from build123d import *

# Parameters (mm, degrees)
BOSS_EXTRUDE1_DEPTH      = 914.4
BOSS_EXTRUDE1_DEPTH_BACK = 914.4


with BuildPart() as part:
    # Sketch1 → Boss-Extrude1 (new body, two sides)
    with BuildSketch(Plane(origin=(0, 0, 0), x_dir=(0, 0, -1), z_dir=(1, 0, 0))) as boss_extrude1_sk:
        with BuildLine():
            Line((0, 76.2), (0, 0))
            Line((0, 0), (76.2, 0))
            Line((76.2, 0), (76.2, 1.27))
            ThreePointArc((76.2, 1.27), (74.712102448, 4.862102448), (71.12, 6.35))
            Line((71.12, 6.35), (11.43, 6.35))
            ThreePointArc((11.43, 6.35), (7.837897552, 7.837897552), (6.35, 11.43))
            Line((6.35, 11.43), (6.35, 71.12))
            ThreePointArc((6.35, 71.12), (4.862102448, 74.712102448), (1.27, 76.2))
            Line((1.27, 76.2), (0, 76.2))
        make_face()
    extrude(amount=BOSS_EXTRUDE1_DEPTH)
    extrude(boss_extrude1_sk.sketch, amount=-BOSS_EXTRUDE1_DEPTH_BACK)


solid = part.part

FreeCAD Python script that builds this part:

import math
import FreeCAD as App
import Part
import Sketcher
Q = App.Units.Quantity

doc = App.newDocument("Part")
body = doc.addObject("PartDesign::Body", "Body")

sketch1 = body.newObject("Sketcher::SketchObject", "Sketch")
sketch1.AttachmentSupport = (doc.getObject("YZ_Plane"), [""])
sketch1.MapMode = "FlatFace"
sketch1.addGeometry([
    Part.LineSegment(App.Vector(76.2, 0, 0), App.Vector(0, 0, 0)),
    Part.LineSegment(App.Vector(0, 0, 0), App.Vector(0, -76.2, 0)),
    Part.LineSegment(App.Vector(0, -76.2, 0), App.Vector(1.27, -76.2, 0)),
    Part.ArcOfCircle(Part.Circle(App.Vector(1.27, -71.12, 0), App.Vector(0, 0, 1), 5.08), math.radians(-90), math.radians(0)),
    Part.LineSegment(App.Vector(6.35, -71.12, 0), App.Vector(6.35, -11.43, 0)),
    Part.ArcOfCircle(Part.Circle(App.Vector(11.43, -11.43, 0), App.Vector(0, 0, 1), 5.08), math.radians(90), math.radians(180)),
    Part.LineSegment(App.Vector(11.43, -6.35, 0), App.Vector(71.12, -6.35, 0)),
    Part.ArcOfCircle(Part.Circle(App.Vector(71.12, -1.27, 0), App.Vector(0, 0, 1), 5.08), math.radians(-90), math.radians(0)),
    Part.LineSegment(App.Vector(76.2, -1.27, 0), App.Vector(76.2, 0, 0)),
], False)
sketch1.addConstraint([
    Sketcher.Constraint("Coincident", 0, 2, 1, 1),
    Sketcher.Constraint("Coincident", 1, 2, 2, 1),
    Sketcher.Constraint("Tangent", 2, 2, 3, 1),
    Sketcher.Constraint("Tangent", 3, 2, 4, 1),
    Sketcher.Constraint("Tangent", 4, 2, 5, 2),
    Sketcher.Constraint("Tangent", 5, 1, 6, 1),
    Sketcher.Constraint("Tangent", 6, 2, 7, 1),
    Sketcher.Constraint("Tangent", 7, 2, 8, 1),
    Sketcher.Constraint("Coincident", 8, 2, 0, 1),
    Sketcher.Constraint("Horizontal", 0),
    Sketcher.Constraint("Vertical", 1),
    Sketcher.Constraint("Horizontal", 2),
    Sketcher.Constraint("Vertical", 4),
    Sketcher.Constraint("Horizontal", 6),
    Sketcher.Constraint("Vertical", 8),
    Sketcher.Constraint("Coincident", 0, 2, -1, 1),
    Sketcher.Constraint("Equal", 3, 5),
    Sketcher.Constraint("Equal", 5, 7),
    Sketcher.Constraint("Equal", 0, 1),
    Sketcher.Constraint("Equal", 6, 4),
    Sketcher.Constraint("Radius", 3, Q("0.2 in")),
    Sketcher.Constraint("DistanceX", 0, 2, 0, 1, Q("3 in")),
    Sketcher.Constraint("DistanceX", 2, 1, 2, 2, Q("0.05 in")),
])
pad1 = body.newObject("PartDesign::Pad", "Pad")
pad1.Profile = sketch1
pad1.Type = "TwoLengths"
pad1.Length = Q("36 in")
pad1.Length2 = Q("36 in")

doc.recompute()
